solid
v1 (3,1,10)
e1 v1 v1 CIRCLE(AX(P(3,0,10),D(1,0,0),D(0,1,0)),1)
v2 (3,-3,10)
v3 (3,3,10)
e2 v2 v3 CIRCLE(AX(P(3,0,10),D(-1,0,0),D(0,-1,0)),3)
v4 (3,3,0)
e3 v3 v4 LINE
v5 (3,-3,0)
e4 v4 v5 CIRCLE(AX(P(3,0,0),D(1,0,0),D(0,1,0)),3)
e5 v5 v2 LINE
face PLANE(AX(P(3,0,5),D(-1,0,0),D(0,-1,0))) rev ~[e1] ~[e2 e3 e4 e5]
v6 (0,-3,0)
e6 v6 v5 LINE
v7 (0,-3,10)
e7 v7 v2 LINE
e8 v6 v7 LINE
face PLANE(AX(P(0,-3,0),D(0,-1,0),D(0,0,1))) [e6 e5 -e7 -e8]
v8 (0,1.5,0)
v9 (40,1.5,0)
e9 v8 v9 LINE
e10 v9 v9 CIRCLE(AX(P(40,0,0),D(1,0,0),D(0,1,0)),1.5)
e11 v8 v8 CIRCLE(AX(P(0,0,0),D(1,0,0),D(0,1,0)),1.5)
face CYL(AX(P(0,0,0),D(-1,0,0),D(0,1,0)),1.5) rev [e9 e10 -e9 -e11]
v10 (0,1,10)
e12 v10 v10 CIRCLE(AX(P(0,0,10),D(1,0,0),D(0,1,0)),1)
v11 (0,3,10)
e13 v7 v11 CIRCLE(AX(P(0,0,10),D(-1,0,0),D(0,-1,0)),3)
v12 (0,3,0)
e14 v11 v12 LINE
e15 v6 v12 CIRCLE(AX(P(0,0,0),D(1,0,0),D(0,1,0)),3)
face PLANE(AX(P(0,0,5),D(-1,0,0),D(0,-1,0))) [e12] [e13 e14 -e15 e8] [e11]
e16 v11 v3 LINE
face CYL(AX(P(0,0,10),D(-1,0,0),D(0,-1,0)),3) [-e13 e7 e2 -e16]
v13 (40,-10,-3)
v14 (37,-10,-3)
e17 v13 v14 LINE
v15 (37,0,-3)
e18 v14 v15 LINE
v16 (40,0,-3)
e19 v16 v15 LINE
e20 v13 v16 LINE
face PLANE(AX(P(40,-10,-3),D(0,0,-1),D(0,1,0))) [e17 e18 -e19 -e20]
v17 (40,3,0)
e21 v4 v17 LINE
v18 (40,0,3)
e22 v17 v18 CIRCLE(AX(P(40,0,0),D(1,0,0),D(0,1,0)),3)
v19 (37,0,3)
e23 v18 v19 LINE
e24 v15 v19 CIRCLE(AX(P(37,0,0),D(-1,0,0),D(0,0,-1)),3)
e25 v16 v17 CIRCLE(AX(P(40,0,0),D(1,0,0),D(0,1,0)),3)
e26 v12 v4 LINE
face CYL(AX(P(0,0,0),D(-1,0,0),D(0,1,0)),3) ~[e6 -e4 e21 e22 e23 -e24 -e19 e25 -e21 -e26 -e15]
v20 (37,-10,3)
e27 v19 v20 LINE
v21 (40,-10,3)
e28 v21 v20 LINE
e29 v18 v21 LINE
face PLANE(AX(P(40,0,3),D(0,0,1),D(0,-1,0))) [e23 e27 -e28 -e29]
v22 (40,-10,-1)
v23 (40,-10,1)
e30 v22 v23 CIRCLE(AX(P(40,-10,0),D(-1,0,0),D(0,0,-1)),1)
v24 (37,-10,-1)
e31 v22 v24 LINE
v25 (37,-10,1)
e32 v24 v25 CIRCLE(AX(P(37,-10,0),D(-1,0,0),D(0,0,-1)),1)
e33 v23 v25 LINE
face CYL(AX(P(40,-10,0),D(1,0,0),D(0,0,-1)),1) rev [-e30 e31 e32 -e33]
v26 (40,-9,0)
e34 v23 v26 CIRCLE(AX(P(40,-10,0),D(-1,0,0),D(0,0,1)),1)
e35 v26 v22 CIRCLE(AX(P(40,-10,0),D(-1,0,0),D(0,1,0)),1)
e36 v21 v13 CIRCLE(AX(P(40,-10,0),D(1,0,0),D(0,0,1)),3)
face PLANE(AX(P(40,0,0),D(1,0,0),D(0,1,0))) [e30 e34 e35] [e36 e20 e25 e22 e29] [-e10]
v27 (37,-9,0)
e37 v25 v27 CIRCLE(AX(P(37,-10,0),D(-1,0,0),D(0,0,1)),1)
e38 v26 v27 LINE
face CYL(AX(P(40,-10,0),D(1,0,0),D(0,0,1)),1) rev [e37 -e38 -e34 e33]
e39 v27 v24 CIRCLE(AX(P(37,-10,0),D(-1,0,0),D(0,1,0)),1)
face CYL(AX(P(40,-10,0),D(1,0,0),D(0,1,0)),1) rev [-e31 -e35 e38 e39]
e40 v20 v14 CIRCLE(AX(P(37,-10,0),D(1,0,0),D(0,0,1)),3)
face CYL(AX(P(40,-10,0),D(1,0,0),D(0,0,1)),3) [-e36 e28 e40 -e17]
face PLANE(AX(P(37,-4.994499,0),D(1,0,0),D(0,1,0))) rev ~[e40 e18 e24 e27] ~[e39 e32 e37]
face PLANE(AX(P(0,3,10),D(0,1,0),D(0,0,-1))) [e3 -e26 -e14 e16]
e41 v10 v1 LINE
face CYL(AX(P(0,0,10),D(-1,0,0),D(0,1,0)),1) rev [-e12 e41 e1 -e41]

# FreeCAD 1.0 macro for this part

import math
import FreeCAD as App
import Part
import Sketcher

doc = App.newDocument("Part")
body = doc.addObject("PartDesign::Body", "Body")

sketch1 = body.newObject("Sketcher::SketchObject", "Sketch")
sketch1.AttachmentSupport = (doc.getObject("YZ_Plane"), [""])
sketch1.MapMode = "FlatFace"
sketch1.addGeometry(Part.Circle(App.Vector(0, 0, 0), App.Vector(0, 0, 1), 3), False)
sketch1.addGeometry(Part.Circle(App.Vector(0, 0, 0), App.Vector(0, 0, 1), 1.5), False)
sketch1.addConstraint(Sketcher.Constraint("Coincident", 0, 3, -1, 1))
sketch1.addConstraint(Sketcher.Constraint("Coincident", 1, 3, -1, 1))
sketch1.addConstraint(Sketcher.Constraint("Diameter", 0, 6.0))
sketch1.addConstraint(Sketcher.Constraint("Diameter", 1, 3.0))
pad1 = body.newObject("PartDesign::Pad", "Pad")
pad1.Profile = sketch1
pad1.Length = 40

sketch2 = body.newObject("Sketcher::SketchObject", "Sketch001")
sketch2.AttachmentSupport = (doc.getObject("YZ_Plane"), [""])
sketch2.MapMode = "FlatFace"
sketch2.AttachmentOffset = App.Placement(App.Vector(0, 0, 40), App.Rotation())
sketch2.addGeometry(Part.LineSegment(App.Vector(-10, -3, 0), App.Vector(0, -3, 0)), False)
sketch2.addGeometry(Part.ArcOfCircle(Part.Circle(App.Vector(0, 0, 0), App.Vector(0, 0, 1), 3), math.radians(90), math.radians(270)), False)
sketch2.addGeometry(Part.LineSegment(App.Vector(0, 3, 0), App.Vector(-10, 3, 0)), False)
sketch2.addGeometry(Part.ArcOfCircle(Part.Circle(App.Vector(-10, 0, 0), App.Vector(0, 0, 1), 3), math.radians(90), math.radians(270)), False)
sketch2.addGeometry(Part.ArcOfCircle(Part.Circle(App.Vector(-10, 0, 0), App.Vector(0, 0, 1), 1), math.radians(0), math.radians(90)), False)
sketch2.addGeometry(Part.ArcOfCircle(Part.Circle(App.Vector(-10, 0, 0), App.Vector(0, 0, 1), 1), math.radians(-90), math.radians(0)), False)
sketch2.addGeometry(Part.ArcOfCircle(Part.Circle(App.Vector(-10, 0, 0), App.Vector(0, 0, 1), 1), math.radians(90), math.radians(270)), False)
sketch2.addConstraint(Sketcher.Constraint("Tangent", 0, 2, 1, 2))
sketch2.addConstraint(Sketcher.Constraint("Tangent", 1, 1, 2, 1))
sketch2.addConstraint(Sketcher.Constraint("Tangent", 2, 2, 3, 1))
sketch2.addConstraint(Sketcher.Constraint("Tangent", 3, 2, 0, 1))
sketch2.addConstraint(Sketcher.Constraint("Tangent", 4, 1, 5, 2))
sketch2.addConstraint(Sketcher.Constraint("Tangent", 5, 1, 6, 2))
sketch2.addConstraint(Sketcher.Constraint("Tangent", 6, 1, 4, 2))
sketch2.addConstraint(Sketcher.Constraint("Horizontal", 0))
sketch2.addConstraint(Sketcher.Constraint("Horizontal", 2))
sketch2.addConstraint(Sketcher.Constraint("Coincident", 1, 3, -1, 1))
sketch2.addConstraint(Sketcher.Constraint("Coincident", 4, 3, 3, 3))
sketch2.addConstraint(Sketcher.Constraint("PointOnObject", 4, 1, -1))
sketch2.addConstraint(Sketcher.Constraint("Vertical", 3, 2, 5, 1))
sketch2.addConstraint(Sketcher.Constraint("Vertical", 5, 1, 6, 1))
sketch2.addConstraint(Sketcher.Constraint("Radius", 1, 3.0))
sketch2.addConstraint(Sketcher.Constraint("Radius", 4, 1.0))
sketch2.addConstraint(Sketcher.Constraint("DistanceX", 0, 1, 0, 2, 10.0))
pad2 = body.newObject("PartDesign::Pad", "Pad001")
pad2.Profile = sketch2
pad2.Length = 3
pad2.Reversed = True

sketch3 = body.newObject("Sketcher::SketchObject", "Sketch002")
sketch3.AttachmentSupport = (doc.getObject("YZ_Plane"), [""])
sketch3.MapMode = "FlatFace"
sketch3.addGeometry(Part.ArcOfCircle(Part.Circle(App.Vector(0, 0, 0), App.Vector(0, 0, 1), 3), math.radians(0), math.radians(180)), False)
sketch3.addGeometry(Part.LineSegment(App.Vector(-3, 0, 0), App.Vector(-3, 10, 0)), False)
sketch3.addGeometry(Part.ArcOfCircle(Part.Circle(App.Vector(0, 10, 0), App.Vector(0, 0, 1), 3), math.radians(0), math.radians(180)), False)
sketch3.addGeometry(Part.LineSegment(App.Vector(3, 10, 0), App.Vector(3, 0, 0)), False)
sketch3.addGeometry(Part.Circle(App.Vector(0, 10, 0), App.Vector(0, 0, 1), 1), False)
sketch3.addConstraint(Sketcher.Constraint("Tangent", 0, 2, 1, 1))
sketch3.addConstraint(Sketcher.Constraint("Tangent", 1, 2, 2, 2))
sketch3.addConstraint(Sketcher.Constraint("Tangent", 2, 1, 3, 1))
sketch3.addConstraint(Sketcher.Constraint("Tangent", 3, 2, 0, 1))
sketch3.addConstraint(Sketcher.Constraint("Vertical", 1))
sketch3.addConstraint(Sketcher.Constraint("Vertical", 3))
sketch3.addConstraint(Sketcher.Constraint("Coincident", 0, 3, -1, 1))
sketch3.addConstraint(Sketcher.Constraint("Coincident", 4, 3, 2, 3))
sketch3.addConstraint(Sketcher.Constraint("Diameter", 4, 2.0))
sketch3.addConstraint(Sketcher.Constraint("Radius", 0, 3.0))
sketch3.addConstraint(Sketcher.Constraint("DistanceY", 1, 1, 1, 2, 10.0))
pad3 = body.newObject("PartDesign::Pad", "Pad002")
pad3.Profile = sketch3
pad3.Length = 3

doc.recompute()
